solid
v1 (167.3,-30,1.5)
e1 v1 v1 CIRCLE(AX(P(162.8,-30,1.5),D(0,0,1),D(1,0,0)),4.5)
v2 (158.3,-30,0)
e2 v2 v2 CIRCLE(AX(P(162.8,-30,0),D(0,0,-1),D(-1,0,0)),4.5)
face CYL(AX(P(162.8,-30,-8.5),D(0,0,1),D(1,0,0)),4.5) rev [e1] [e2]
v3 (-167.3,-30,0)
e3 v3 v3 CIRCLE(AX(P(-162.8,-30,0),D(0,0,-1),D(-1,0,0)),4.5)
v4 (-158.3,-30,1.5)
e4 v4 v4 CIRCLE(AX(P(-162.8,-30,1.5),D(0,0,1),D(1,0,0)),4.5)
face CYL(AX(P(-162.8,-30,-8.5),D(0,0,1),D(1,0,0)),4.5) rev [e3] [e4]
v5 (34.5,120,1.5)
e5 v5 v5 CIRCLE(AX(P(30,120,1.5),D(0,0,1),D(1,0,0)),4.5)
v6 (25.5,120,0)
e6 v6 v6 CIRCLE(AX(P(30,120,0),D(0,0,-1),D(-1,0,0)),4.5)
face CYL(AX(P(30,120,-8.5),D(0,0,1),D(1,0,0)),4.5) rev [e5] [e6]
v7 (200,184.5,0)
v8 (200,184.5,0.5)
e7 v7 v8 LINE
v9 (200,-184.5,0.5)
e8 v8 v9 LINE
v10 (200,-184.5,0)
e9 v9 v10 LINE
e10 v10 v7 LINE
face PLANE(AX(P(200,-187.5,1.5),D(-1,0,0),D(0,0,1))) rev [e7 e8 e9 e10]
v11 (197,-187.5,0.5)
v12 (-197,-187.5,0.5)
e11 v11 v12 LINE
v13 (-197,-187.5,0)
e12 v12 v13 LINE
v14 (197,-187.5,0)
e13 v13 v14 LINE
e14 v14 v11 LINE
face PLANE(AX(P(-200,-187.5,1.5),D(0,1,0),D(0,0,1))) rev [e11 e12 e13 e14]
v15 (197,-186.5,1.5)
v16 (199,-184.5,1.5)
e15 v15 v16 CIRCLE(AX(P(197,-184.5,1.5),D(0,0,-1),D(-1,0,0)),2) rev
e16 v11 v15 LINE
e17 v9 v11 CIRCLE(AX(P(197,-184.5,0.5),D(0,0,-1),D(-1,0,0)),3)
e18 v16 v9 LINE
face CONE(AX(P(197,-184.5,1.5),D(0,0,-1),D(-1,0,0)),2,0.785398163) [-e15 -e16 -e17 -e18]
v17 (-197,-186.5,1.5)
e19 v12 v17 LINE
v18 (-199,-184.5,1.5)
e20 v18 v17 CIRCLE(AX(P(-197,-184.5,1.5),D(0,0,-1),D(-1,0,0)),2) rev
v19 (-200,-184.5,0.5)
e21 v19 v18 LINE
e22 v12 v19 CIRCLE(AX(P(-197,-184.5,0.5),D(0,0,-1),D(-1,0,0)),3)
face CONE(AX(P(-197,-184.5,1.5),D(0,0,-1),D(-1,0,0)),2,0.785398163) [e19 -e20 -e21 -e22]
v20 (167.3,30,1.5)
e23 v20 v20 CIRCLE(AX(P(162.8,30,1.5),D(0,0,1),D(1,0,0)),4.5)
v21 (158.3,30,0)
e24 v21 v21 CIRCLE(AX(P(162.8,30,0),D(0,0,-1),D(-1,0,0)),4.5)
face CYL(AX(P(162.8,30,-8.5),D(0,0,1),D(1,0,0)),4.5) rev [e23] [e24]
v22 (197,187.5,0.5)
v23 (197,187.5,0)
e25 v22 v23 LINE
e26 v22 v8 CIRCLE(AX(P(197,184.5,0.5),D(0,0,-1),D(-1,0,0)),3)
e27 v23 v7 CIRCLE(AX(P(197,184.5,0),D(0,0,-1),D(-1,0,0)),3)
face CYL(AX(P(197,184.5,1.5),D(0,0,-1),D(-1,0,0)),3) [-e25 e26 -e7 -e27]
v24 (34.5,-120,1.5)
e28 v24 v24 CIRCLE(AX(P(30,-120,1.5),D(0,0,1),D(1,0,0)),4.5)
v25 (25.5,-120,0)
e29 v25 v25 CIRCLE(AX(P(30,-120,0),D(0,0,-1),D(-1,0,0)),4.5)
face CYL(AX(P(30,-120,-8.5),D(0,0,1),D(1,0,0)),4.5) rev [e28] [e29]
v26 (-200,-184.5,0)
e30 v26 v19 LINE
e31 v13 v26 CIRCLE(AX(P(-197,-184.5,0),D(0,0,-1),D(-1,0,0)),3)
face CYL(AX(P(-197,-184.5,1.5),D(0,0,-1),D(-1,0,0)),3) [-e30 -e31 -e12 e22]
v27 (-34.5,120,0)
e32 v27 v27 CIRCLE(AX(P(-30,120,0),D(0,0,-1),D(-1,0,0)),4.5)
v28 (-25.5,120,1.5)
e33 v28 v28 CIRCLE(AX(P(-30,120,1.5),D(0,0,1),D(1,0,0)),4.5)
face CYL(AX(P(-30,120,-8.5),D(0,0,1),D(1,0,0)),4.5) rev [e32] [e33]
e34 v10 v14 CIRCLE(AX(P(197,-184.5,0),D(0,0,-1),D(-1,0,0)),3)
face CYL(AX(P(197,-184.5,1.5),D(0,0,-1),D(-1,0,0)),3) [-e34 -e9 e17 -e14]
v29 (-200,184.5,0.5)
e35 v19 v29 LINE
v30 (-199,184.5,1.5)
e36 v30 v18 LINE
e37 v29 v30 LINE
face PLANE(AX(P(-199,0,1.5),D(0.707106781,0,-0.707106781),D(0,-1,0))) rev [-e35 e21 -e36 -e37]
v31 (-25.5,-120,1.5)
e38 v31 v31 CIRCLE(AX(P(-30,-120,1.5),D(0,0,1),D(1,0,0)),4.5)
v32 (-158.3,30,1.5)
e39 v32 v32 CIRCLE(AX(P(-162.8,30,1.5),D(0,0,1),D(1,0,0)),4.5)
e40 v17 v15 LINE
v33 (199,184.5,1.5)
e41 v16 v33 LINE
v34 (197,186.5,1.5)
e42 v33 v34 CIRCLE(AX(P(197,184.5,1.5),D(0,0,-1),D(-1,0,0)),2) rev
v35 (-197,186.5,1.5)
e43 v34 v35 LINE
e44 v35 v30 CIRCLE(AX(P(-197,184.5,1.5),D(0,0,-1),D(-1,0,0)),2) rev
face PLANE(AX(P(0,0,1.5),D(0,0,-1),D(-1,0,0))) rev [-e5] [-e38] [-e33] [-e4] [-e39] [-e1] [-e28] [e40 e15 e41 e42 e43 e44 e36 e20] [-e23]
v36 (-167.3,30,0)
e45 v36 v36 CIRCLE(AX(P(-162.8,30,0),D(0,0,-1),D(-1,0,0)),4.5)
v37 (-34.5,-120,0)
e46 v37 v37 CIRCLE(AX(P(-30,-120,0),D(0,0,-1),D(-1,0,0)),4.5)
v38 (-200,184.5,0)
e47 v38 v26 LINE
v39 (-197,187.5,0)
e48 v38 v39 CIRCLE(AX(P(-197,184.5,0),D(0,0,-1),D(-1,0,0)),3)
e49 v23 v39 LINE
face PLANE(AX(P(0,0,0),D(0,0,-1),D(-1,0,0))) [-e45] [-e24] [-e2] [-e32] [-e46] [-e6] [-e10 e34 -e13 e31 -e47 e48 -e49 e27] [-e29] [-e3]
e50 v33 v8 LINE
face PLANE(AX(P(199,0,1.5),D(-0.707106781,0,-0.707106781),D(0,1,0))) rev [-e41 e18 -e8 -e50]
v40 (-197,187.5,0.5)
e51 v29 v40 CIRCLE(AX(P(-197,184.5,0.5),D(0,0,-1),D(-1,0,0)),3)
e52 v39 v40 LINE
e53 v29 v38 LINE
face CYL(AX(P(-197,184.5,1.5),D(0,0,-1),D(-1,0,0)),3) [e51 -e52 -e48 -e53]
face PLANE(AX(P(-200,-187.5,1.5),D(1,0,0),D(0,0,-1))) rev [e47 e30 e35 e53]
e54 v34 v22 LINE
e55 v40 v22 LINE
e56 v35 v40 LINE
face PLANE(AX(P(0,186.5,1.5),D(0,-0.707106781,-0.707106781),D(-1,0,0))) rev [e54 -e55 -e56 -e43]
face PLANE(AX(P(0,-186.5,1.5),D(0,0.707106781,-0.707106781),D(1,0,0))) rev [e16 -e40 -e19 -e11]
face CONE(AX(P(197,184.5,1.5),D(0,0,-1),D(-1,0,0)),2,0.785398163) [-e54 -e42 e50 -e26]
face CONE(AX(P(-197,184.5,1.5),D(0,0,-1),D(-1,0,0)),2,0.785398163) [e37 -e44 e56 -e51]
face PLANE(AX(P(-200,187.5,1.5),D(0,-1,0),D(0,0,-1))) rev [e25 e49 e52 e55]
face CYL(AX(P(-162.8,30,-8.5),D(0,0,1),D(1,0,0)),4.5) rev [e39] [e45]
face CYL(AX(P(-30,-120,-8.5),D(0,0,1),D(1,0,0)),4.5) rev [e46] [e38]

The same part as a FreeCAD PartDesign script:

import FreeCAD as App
import Part
import Sketcher

V = App.Vector
Q = App.Units.Quantity


def edges_at(feature, points):
    """Names of the edges that pass closest to the given points."""
    edges = feature.Shape.Edges
    near = lambda p: min(range(len(edges)), key=lambda i: edges[i].distToShape(Part.Vertex(*p))[0])
    return sorted({f"Edge{near(p) + 1}" for p in points})

doc = App.newDocument("Part")
params = doc.addObject("Spreadsheet::Sheet", "Params")
for row, (alias, value) in enumerate([
    ("sketch1_width", "400 mm"),
    ("sketch1_height", "375 mm"),
    ("pad1_length", "1.5 mm"),
    ("fillet_radius", "3 mm"),
    ("chamfer_size", "1 mm"),
    ("sketch2_diameter", "9 mm"),
    ("pocket1_length", "10 mm"),
], start=1):
    params.set(f"A{row}", alias)
    params.set(f"B{row}", "=" + value)
    params.setAlias(f"B{row}", alias)

body = doc.addObject("PartDesign::Body", "Body")

# Sketch on XY plane
sketch1 = body.newObject("Sketcher::SketchObject", "Sketch")
sketch1.AttachmentSupport = (doc.getObject("XY_Plane"), [""])
sketch1.MapMode = "FlatFace"
sketch1.addGeometry([
    Part.LineSegment(V(-200, 188, 0), V(-200, -188, 0)),
    Part.LineSegment(V(-200, -188, 0), V(200, -188, 0)),
    Part.LineSegment(V(200, -188, 0), V(200, 188, 0)),
    Part.LineSegment(V(200, 188, 0), V(-200, 188, 0)),
], False)
sketch1.addConstraint([
    Sketcher.Constraint("Coincident", 0, 2, 1, 1),
    Sketcher.Constraint("Coincident", 1, 2, 2, 1),
    Sketcher.Constraint("Coincident", 2, 2, 3, 1),
    Sketcher.Constraint("Coincident", 3, 2, 0, 1),
    Sketcher.Constraint("Vertical", 0),
    Sketcher.Constraint("Horizontal", 1),
    Sketcher.Constraint("Vertical", 2),
    Sketcher.Constraint("Horizontal", 3),
    Sketcher.Constraint("Symmetric", 0, 2, 2, 2, -1, 1),
    Sketcher.Constraint("DistanceX", 1, 1, 1, 2, Q("400 mm")),
    Sketcher.Constraint("DistanceY", 0, 2, 0, 1, Q("375 mm")),
])
sketch1.setExpression("Constraints[9]", "Params.sketch1_width")
sketch1.setExpression("Constraints[10]", "Params.sketch1_height")
pad1 = body.newObject("PartDesign::Pad", "Pad")
pad1.Profile = sketch1
pad1.setExpression("Length", "Params.pad1_length")
doc.recompute()

fillet = body.newObject("PartDesign::Fillet", "Fillet")
fillet.Base = (pad1, edges_at(pad1, [
    (200, -187.5, 0.75),
    (-200, -187.5, 0.75),
    (-200, 187.5, 0.75),
    (200, 187.5, 0.75),
]))
fillet.setExpression("Radius", "Params.fillet_radius")
doc.recompute()

chamfer = body.newObject("PartDesign::Chamfer", "Chamfer")
chamfer.Base = (fillet, edges_at(fillet, [
    (0, -187.5, 1.5),
    (-200, 0, 1.5),
    (200, 0, 1.5),
    (0, 187.5, 1.5),
    (-199.121, 186.621, 1.5),
    (199.121, 186.621, 1.5),
    (199.121, -186.621, 1.5),
    (-199.121, -186.621, 1.5),
]))
chamfer.setExpression("Size", "Params.chamfer_size")

# Sketch on XY plane
sketch2 = body.newObject("Sketcher::SketchObject", "Sketch001")
sketch2.AttachmentSupport = (doc.getObject("XY_Plane"), [""])
sketch2.MapMode = "FlatFace"
sketch2.AttachmentOffset = App.Placement(V(0, 0, 1.5), App.Rotation())
sketch2.addGeometry([
    Part.Circle(V(-30, 120, 0), V(0, 0, 1), 4.5),  # 0
    Part.Circle(V(30, 120, 0), V(0, 0, 1), 4.5),  # 1
    Part.Circle(V(162.8, 30, 0), V(0, 0, 1), 4.5),  # 2
    Part.Circle(V(162.8, -30, 0), V(0, 0, 1), 4.5),  # 3
    Part.Circle(V(30, -120, 0), V(0, 0, 1), 4.5),  # 4
    Part.Circle(V(-30, -120, 0), V(0, 0, 1), 4.5),  # 5
    Part.Circle(V(-162.8, 30, 0), V(0, 0, 1), 4.5),  # 6
    Part.Circle(V(-162.8, -30, 0), V(0, 0, 1), 4.5),  # 7
], False)
sketch2.addConstraint([
    Sketcher.Constraint("Equal", 0, 1),
    Sketcher.Constraint("Equal", 1, 2),
    Sketcher.Constraint("Equal", 2, 3),
    Sketcher.Constraint("Equal", 3, 4),
    Sketcher.Constraint("Equal", 4, 5),
    Sketcher.Constraint("Equal", 5, 6),
    Sketcher.Constraint("Equal", 6, 7),
    Sketcher.Constraint("Symmetric", 0, 3, 4, 3, -1, 1),
    Sketcher.Constraint("Symmetric", 1, 3, 5, 3, -1, 1),
    Sketcher.Constraint("Symmetric", 3, 3, 6, 3, -1, 1),
    Sketcher.Constraint("Symmetric", 2, 3, 7, 3, -1, 1),
    Sketcher.Constraint("Symmetric", 0, 3, 1, 3, -2),
    Sketcher.Constraint("Symmetric", 2, 3, 6, 3, -2),
    Sketcher.Constraint("Diameter", 0, Q("9 mm")),
    Sketcher.Constraint("DistanceX", 0, 3, -1, 1, Q("30 mm")),
    Sketcher.Constraint("DistanceY", -1, 1, 0, 3, Q("120 mm")),
    Sketcher.Constraint("DistanceY", -1, 1, 2, 3, Q("30 mm")),
    Sketcher.Constraint("DistanceX", -1, 1, 2, 3, Q("162.8 mm")),
])
sketch2.setExpression("Constraints[13]", "Params.sketch2_diameter")
pocket1 = body.newObject("PartDesign::Pocket", "Pocket")
pocket1.Profile = sketch2
pocket1.setExpression("Length", "Params.pocket1_length")

doc.recompute()
